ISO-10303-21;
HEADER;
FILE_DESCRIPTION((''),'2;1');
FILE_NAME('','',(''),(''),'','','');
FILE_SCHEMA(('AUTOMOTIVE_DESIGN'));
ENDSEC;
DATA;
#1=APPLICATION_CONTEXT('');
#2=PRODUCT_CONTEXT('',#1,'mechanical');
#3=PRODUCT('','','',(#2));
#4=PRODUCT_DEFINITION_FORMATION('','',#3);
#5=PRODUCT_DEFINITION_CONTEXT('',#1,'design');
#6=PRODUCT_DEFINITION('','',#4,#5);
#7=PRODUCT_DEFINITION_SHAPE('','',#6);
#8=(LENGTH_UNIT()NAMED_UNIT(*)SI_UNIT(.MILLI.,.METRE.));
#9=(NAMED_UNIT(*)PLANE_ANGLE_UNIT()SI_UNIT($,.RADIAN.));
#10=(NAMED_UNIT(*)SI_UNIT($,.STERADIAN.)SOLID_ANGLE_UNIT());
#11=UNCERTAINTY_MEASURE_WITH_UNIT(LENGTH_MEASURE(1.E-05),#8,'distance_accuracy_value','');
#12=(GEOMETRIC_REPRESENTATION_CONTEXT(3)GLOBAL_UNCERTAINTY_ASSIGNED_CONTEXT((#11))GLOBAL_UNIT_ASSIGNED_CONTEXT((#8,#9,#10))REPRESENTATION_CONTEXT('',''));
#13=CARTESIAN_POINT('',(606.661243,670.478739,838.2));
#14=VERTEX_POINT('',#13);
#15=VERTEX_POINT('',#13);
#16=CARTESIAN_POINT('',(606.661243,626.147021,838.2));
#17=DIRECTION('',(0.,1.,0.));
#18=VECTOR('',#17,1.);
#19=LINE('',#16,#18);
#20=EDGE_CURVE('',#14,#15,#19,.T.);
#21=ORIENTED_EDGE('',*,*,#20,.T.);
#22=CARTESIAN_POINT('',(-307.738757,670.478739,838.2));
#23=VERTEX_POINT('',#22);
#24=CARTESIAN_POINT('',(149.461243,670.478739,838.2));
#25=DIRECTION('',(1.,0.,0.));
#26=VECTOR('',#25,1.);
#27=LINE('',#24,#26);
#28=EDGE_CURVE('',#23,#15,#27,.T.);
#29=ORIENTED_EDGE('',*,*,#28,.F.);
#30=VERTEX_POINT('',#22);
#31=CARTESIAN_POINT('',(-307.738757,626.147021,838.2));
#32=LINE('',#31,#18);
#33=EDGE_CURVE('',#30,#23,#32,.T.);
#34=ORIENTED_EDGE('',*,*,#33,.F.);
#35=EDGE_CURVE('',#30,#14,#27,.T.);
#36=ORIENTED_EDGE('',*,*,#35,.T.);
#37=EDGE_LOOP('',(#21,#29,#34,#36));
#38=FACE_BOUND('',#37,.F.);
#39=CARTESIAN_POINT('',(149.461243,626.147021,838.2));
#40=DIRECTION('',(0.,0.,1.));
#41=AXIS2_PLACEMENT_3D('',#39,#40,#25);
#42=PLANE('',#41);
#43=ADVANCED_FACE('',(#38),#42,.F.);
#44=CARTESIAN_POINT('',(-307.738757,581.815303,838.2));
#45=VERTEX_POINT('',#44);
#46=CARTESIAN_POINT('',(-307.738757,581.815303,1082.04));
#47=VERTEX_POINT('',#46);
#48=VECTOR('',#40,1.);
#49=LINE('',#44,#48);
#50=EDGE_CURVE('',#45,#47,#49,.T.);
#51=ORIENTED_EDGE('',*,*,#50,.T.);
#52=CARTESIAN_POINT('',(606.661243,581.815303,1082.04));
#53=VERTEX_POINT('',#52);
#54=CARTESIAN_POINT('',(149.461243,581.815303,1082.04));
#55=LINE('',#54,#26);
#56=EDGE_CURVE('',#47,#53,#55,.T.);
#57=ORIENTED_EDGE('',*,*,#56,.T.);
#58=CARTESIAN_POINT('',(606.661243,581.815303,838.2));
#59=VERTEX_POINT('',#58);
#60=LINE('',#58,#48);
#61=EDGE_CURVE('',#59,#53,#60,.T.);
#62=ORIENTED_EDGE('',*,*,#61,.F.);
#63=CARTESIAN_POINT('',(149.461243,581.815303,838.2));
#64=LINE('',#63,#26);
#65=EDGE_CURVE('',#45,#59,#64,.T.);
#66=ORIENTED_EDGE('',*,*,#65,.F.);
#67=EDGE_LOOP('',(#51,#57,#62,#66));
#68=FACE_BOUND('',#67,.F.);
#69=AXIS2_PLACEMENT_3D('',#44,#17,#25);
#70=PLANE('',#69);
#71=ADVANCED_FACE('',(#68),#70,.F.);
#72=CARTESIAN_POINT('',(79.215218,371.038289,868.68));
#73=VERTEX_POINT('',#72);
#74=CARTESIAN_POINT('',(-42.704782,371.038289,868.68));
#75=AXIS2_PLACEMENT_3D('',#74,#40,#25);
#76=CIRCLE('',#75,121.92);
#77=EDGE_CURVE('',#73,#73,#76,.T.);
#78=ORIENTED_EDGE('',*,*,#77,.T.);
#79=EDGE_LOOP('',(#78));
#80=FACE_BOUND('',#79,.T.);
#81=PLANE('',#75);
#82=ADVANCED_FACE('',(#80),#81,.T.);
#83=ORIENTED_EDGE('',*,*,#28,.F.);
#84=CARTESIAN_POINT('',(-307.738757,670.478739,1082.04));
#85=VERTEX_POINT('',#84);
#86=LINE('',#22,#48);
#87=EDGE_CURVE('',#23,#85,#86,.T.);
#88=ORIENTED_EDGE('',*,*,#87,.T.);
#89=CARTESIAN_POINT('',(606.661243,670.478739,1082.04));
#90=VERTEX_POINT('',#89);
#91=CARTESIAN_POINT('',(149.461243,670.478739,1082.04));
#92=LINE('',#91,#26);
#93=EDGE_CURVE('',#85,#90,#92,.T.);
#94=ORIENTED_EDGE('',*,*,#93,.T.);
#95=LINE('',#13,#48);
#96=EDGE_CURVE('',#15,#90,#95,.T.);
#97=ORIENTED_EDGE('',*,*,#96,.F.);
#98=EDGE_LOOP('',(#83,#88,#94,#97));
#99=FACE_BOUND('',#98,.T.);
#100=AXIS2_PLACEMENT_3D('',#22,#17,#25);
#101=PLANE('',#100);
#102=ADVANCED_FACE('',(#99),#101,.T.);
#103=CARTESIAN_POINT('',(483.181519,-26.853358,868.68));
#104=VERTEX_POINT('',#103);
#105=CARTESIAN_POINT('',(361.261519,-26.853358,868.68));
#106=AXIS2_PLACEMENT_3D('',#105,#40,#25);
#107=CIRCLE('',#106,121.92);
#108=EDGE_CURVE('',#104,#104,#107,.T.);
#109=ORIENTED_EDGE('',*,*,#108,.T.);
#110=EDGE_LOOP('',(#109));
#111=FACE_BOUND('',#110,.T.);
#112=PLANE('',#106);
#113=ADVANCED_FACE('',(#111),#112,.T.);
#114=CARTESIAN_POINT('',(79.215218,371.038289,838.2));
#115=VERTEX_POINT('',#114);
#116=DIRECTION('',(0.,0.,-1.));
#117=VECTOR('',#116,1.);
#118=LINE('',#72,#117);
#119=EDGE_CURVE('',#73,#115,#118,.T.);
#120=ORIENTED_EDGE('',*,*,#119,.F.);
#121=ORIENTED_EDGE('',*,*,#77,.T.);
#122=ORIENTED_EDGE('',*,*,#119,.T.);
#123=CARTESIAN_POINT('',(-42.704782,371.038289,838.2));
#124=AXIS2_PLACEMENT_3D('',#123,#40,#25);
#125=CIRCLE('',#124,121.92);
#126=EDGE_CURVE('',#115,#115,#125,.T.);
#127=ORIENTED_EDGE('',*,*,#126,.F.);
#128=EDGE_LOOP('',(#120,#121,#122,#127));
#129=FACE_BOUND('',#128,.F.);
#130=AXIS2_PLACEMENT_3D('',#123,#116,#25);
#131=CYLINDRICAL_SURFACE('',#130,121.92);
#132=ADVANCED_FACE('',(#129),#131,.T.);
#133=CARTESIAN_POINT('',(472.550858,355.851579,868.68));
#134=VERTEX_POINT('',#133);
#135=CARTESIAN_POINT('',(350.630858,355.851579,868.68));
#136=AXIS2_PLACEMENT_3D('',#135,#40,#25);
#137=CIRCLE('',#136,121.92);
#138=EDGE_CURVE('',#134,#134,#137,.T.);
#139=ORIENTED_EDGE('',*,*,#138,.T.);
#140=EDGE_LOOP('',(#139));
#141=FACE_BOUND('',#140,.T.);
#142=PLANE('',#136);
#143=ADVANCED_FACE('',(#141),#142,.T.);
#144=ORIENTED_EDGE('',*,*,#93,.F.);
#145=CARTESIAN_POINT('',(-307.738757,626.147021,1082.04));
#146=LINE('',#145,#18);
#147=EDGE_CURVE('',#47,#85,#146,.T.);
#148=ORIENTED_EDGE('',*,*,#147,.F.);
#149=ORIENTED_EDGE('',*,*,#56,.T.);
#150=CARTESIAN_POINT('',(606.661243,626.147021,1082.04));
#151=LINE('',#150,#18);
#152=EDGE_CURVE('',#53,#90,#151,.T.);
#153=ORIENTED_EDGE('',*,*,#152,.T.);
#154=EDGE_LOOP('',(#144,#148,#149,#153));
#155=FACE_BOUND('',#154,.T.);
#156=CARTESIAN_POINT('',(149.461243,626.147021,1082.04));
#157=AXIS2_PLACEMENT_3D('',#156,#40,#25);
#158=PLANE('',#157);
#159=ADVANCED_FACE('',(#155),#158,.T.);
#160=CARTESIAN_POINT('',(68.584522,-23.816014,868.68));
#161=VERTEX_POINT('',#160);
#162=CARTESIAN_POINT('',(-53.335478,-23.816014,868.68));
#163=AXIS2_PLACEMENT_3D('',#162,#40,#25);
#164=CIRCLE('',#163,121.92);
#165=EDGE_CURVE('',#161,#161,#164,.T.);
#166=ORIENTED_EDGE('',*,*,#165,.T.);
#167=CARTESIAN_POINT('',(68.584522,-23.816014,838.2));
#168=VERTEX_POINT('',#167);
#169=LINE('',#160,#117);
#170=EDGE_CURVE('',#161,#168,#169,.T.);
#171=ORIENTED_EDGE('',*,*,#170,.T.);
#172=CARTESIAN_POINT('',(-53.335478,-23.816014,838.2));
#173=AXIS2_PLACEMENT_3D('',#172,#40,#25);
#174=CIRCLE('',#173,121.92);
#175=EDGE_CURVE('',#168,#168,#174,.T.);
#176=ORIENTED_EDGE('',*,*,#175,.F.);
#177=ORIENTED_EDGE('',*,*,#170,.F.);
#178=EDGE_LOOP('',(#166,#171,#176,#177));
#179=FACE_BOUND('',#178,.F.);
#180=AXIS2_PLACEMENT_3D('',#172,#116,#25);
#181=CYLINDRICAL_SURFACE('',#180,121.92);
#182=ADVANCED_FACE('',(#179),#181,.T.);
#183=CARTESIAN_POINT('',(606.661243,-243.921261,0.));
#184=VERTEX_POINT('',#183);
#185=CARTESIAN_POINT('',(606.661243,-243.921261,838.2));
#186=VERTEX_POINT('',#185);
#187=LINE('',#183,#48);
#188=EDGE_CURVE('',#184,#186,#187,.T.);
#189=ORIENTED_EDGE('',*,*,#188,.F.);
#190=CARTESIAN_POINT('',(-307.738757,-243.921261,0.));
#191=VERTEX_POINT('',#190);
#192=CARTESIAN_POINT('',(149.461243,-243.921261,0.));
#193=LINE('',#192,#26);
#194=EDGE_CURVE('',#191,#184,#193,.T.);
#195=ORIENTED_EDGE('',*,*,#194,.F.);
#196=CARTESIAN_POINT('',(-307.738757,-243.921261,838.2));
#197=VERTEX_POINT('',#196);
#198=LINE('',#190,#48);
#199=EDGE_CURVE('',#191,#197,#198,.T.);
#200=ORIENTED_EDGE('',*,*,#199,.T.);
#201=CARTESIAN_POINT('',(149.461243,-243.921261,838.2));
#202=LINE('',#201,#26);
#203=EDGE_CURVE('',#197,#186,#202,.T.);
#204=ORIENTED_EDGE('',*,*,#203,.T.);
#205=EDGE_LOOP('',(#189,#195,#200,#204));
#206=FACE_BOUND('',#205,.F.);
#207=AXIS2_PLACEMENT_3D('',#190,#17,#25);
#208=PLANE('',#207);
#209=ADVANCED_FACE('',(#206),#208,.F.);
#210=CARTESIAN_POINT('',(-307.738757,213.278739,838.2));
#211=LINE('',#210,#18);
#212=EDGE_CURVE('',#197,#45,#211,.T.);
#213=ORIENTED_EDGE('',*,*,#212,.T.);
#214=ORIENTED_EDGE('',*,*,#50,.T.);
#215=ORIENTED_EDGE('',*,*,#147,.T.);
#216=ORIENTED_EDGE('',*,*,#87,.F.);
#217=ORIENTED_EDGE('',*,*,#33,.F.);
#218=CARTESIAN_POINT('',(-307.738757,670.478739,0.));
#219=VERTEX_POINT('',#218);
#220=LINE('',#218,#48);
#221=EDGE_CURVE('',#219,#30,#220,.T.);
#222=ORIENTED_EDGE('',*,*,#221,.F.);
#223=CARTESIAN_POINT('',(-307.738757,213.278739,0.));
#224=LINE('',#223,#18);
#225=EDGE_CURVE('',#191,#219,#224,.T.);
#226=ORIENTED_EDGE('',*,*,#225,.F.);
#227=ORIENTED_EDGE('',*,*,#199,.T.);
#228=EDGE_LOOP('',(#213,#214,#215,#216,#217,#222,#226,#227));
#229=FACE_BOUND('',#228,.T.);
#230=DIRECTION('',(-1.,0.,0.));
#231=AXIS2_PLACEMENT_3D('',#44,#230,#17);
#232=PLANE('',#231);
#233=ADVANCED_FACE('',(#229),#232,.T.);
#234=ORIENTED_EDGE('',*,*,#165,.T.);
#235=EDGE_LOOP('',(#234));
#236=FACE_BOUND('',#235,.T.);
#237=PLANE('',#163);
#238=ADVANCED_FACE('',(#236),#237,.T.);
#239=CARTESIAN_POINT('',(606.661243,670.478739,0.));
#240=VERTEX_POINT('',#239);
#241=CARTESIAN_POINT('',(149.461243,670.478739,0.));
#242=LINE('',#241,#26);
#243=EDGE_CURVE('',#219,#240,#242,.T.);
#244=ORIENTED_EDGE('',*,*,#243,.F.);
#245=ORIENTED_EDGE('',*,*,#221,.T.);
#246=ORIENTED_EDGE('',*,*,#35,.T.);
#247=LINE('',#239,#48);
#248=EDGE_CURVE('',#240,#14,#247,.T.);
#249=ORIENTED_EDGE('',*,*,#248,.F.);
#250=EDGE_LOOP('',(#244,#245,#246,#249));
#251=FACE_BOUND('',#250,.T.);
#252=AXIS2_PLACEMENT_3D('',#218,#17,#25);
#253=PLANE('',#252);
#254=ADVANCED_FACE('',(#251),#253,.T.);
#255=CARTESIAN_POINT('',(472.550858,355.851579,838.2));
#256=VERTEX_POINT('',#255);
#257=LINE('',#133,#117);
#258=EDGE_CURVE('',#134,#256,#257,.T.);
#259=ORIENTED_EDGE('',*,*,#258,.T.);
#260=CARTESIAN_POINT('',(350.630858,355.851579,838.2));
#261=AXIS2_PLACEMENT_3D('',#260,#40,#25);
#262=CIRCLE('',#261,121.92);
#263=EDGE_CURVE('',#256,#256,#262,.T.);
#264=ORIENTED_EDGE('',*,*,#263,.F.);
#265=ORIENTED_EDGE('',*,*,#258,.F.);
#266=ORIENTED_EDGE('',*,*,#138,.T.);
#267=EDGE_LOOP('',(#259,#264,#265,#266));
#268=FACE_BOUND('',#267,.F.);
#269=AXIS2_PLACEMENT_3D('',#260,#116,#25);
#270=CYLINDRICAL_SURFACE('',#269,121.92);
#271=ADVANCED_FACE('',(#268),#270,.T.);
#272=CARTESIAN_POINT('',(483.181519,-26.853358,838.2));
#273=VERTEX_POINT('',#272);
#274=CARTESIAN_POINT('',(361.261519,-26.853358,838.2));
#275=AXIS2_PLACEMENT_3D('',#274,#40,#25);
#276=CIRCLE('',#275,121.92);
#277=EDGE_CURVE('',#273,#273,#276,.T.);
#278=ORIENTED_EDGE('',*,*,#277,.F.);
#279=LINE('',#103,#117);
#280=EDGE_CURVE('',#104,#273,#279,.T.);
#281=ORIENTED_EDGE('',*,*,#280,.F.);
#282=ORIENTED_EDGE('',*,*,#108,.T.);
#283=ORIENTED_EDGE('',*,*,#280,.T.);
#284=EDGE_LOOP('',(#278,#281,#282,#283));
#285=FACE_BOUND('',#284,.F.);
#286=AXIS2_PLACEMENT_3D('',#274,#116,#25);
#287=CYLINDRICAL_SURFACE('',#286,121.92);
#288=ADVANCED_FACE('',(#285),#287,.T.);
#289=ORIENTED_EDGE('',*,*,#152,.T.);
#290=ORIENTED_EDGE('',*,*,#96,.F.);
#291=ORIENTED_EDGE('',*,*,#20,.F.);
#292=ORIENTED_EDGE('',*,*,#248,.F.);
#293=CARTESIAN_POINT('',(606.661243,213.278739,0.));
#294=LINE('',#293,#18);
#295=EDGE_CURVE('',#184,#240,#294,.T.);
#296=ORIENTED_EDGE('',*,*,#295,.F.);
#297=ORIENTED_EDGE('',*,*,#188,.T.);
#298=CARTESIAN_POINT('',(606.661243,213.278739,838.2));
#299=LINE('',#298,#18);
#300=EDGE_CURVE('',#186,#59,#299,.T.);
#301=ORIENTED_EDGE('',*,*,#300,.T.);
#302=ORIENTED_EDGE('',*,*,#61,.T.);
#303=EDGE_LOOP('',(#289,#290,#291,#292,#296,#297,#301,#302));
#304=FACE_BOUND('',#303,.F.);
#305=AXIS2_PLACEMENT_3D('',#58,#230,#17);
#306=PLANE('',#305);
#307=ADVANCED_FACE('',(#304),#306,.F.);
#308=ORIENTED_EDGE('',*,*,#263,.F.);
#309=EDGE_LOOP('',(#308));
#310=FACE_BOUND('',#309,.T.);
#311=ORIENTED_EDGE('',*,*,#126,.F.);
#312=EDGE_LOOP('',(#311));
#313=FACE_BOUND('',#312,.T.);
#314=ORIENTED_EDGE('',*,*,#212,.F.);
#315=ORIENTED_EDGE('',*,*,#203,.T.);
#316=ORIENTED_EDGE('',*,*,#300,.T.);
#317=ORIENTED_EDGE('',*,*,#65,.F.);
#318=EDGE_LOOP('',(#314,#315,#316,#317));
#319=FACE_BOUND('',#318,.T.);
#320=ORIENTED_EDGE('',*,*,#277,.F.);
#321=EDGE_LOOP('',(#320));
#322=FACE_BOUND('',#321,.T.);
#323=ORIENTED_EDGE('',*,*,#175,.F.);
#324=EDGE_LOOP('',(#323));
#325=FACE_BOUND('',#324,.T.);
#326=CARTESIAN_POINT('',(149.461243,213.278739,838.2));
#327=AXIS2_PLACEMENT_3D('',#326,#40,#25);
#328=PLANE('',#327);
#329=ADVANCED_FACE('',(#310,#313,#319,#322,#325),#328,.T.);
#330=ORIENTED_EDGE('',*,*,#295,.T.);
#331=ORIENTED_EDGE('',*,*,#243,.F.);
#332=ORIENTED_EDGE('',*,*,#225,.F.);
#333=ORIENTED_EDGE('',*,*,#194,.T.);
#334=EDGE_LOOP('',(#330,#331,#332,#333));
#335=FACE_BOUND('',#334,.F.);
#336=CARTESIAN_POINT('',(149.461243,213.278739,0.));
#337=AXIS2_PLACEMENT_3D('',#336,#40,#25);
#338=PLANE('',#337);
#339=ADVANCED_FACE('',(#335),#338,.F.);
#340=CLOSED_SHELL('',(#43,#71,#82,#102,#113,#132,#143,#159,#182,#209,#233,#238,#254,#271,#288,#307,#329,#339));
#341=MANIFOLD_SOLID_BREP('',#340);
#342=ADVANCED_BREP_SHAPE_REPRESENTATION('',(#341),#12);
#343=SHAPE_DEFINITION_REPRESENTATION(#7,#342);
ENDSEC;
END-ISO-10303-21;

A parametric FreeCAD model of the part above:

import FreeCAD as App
import Part
import Sketcher

V = App.Vector
Q = App.Units.Quantity

doc = App.newDocument("Part")
body = doc.addObject("PartDesign::Body", "Body")

# Sketch on XY plane
sketch1 = doc.addObject("Sketcher::SketchObject", "Sketch")
body.addObject(sketch1)
sketch1.AttachmentSupport = (doc.XY_Plane, [""])
sketch1.MapMode = "FlatFace"
sketch1.addGeometry(Part.LineSegment(V(-308, 670, 0), V(-308, -244, 0)), False)
sketch1.addGeometry(Part.LineSegment(V(-308, -244, 0), V(607, -244, 0)), False)
sketch1.addGeometry(Part.LineSegment(V(607, -244, 0), V(607, 670, 0)), False)
sketch1.addGeometry(Part.LineSegment(V(607, 670, 0), V(-308, 670, 0)), False)
sketch1.addConstraint(Sketcher.Constraint("Coincident", 0, 2, 1, 1))
sketch1.addConstraint(Sketcher.Constraint("Coincident", 1, 2, 2, 1))
sketch1.addConstraint(Sketcher.Constraint("Coincident", 2, 2, 3, 1))
sketch1.addConstraint(Sketcher.Constraint("Coincident", 3, 2, 0, 1))
sketch1.addConstraint(Sketcher.Constraint("Vertical", 0))
sketch1.addConstraint(Sketcher.Constraint("Horizontal", 1))
sketch1.addConstraint(Sketcher.Constraint("Vertical", 2))
sketch1.addConstraint(Sketcher.Constraint("Horizontal", 3))
sketch1.addConstraint(Sketcher.Constraint("Equal", 3, 0))
sketch1.addConstraint(Sketcher.Constraint("DistanceX", 1, 1, 1, 2, Q("36 in")))
sketch1.addConstraint(Sketcher.Constraint("DistanceY", 0, 2, -1, 1, Q("243.921261 mm")))
sketch1.addConstraint(Sketcher.Constraint("DistanceX", 0, 2, -1, 1, Q("307.738757 mm")))
pad1 = doc.addObject("PartDesign::Pad", "Pad")
body.addObject(pad1)
pad1.Profile = sketch1
pad1.Length = Q("33 in")

# Sketch on XY plane
sketch2 = doc.addObject("Sketcher::SketchObject", "Sketch001")
body.addObject(sketch2)
sketch2.AttachmentSupport = (doc.XY_Plane, [""])
sketch2.MapMode = "FlatFace"
sketch2.AttachmentOffset = App.Placement(V(0, 0, 33 * 25.4), App.Rotation())
sketch2.addGeometry(Part.Circle(V(351, 356, 0), V(0, 0, 1), 122), False)
sketch2.addGeometry(Part.Circle(V(-43, 371, 0), V(0, 0, 1), 122), False)
sketch2.addGeometry(Part.Circle(V(361, -27, 0), V(0, 0, 1), 122), False)
sketch2.addGeometry(Part.Circle(V(-53, -24, 0), V(0, 0, 1), 122), False)
sketch2.addConstraint(Sketcher.Constraint("Equal", 0, 1))
sketch2.addConstraint(Sketcher.Constraint("Equal", 1, 2))
sketch2.addConstraint(Sketcher.Constraint("Equal", 2, 3))
sketch2.addConstraint(Sketcher.Constraint("Diameter", 0, Q("9.6 in")))
sketch2.addConstraint(Sketcher.Constraint("DistanceX", 1, 3, 2, 3, Q("403.966301 mm")))
sketch2.addConstraint(Sketcher.Constraint("DistanceX", -1, 1, 0, 3, Q("350.630858 mm")))
sketch2.addConstraint(Sketcher.Constraint("DistanceY", -1, 1, 0, 3, Q("355.851579 mm")))
sketch2.addConstraint(Sketcher.Constraint("DistanceY", -1, 1, 1, 3, Q("371.038289 mm")))
sketch2.addConstraint(Sketcher.Constraint("DistanceX", -1, 1, 2, 3, Q("361.261519 mm")))
sketch2.addConstraint(Sketcher.Constraint("DistanceY", 2, 3, -1, 1, Q("26.853358 mm")))
sketch2.addConstraint(Sketcher.Constraint("DistanceX", 3, 3, -1, 1, Q("53.335478 mm")))
sketch2.addConstraint(Sketcher.Constraint("DistanceY", 3, 3, -1, 1, Q("23.816014 mm")))
pad2 = doc.addObject("PartDesign::Pad", "Pad001")
body.addObject(pad2)
pad2.Profile = sketch2
pad2.Length = Q("0.24 in")

# Sketch on XY plane
sketch3 = doc.addObject("Sketcher::SketchObject", "Sketch002")
body.addObject(sketch3)
sketch3.AttachmentSupport = (doc.XY_Plane, [""])
sketch3.MapMode = "FlatFace"
sketch3.AttachmentOffset = App.Placement(V(0, 0, 33 * 25.4), App.Rotation())
sketch3.addGeometry(Part.Circle(V(351, 356, 0), V(0, 0, 1), 122), False)
sketch3.addGeometry(Part.Circle(V(-43, 371, 0), V(0, 0, 1), 122), False)
sketch3.addGeometry(Part.Circle(V(361, -27, 0), V(0, 0, 1), 122), False)
sketch3.addGeometry(Part.Circle(V(-53, -24, 0), V(0, 0, 1), 122), False)
sketch3.addConstraint(Sketcher.Constraint("Equal", 0, 1))
sketch3.addConstraint(Sketcher.Constraint("Equal", 1, 2))
sketch3.addConstraint(Sketcher.Constraint("Equal", 2, 3))
sketch3.addConstraint(Sketcher.Constraint("Diameter", 0, Q("9.6 in")))
sketch3.addConstraint(Sketcher.Constraint("DistanceX", 1, 3, 2, 3, Q("403.966301 mm")))
sketch3.addConstraint(Sketcher.Constraint("DistanceX", -1, 1, 0, 3, Q("350.630858 mm")))
sketch3.addConstraint(Sketcher.Constraint("DistanceY", -1, 1, 0, 3, Q("355.851579 mm")))
sketch3.addConstraint(Sketcher.Constraint("DistanceY", -1, 1, 1, 3, Q("371.038289 mm")))
sketch3.addConstraint(Sketcher.Constraint("DistanceX", -1, 1, 2, 3, Q("361.261519 mm")))
sketch3.addConstraint(Sketcher.Constraint("DistanceY", 2, 3, -1, 1, Q("26.853358 mm")))
sketch3.addConstraint(Sketcher.Constraint("DistanceX", 3, 3, -1, 1, Q("53.335478 mm")))
sketch3.addConstraint(Sketcher.Constraint("DistanceY", 3, 3, -1, 1, Q("23.816014 mm")))
pad3 = doc.addObject("PartDesign::Pad", "Pad002")
body.addObject(pad3)
pad3.Profile = sketch3
pad3.Length = Q("1.2 in")

# Sketch on XY plane
sketch4 = doc.addObject("Sketcher::SketchObject", "Sketch003")
body.addObject(sketch4)
sketch4.AttachmentSupport = (doc.XY_Plane, [""])
sketch4.MapMode = "FlatFace"
sketch4.AttachmentOffset = App.Placement(V(0, 0, 33 * 25.4), App.Rotation())
sketch4.addGeometry(Part.LineSegment(V(-308, 670, 0), V(-308, 582, 0)), False)
sketch4.addGeometry(Part.LineSegment(V(-308, 582, 0), V(607, 582, 0)), False)
sketch4.addGeometry(Part.LineSegment(V(607, 582, 0), V(607, 670, 0)), False)
sketch4.addGeometry(Part.LineSegment(V(607, 670, 0), V(-308, 670, 0)), False)
sketch4.addConstraint(Sketcher.Constraint("Coincident", 0, 2, 1, 1))
sketch4.addConstraint(Sketcher.Constraint("Coincident", 1, 2, 2, 1))
sketch4.addConstraint(Sketcher.Constraint("Coincident", 2, 2, 3, 1))
sketch4.addConstraint(Sketcher.Constraint("Coincident", 3, 2, 0, 1))
sketch4.addConstraint(Sketcher.Constraint("Vertical", 0))
sketch4.addConstraint(Sketcher.Constraint("Horizontal", 1))
sketch4.addConstraint(Sketcher.Constraint("Vertical", 2))
sketch4.addConstraint(Sketcher.Constraint("Horizontal", 3))
sketch4.addConstraint(Sketcher.Constraint("DistanceX", 1, 1, 1, 2, Q("36 in")))
sketch4.addConstraint(Sketcher.Constraint("DistanceY", 0, 2, 0, 1, Q("88.663437 mm")))
sketch4.addConstraint(Sketcher.Constraint("DistanceY", -1, 1, 2, 2, Q("670.478739 mm")))
sketch4.addConstraint(Sketcher.Constraint("DistanceX", 0, 2, -1, 1, Q("307.738757 mm")))
pad4 = doc.addObject("PartDesign::Pad", "Pad003")
body.addObject(pad4)
pad4.Profile = sketch4
pad4.Length = Q("9.6 in")

doc.recompute()
